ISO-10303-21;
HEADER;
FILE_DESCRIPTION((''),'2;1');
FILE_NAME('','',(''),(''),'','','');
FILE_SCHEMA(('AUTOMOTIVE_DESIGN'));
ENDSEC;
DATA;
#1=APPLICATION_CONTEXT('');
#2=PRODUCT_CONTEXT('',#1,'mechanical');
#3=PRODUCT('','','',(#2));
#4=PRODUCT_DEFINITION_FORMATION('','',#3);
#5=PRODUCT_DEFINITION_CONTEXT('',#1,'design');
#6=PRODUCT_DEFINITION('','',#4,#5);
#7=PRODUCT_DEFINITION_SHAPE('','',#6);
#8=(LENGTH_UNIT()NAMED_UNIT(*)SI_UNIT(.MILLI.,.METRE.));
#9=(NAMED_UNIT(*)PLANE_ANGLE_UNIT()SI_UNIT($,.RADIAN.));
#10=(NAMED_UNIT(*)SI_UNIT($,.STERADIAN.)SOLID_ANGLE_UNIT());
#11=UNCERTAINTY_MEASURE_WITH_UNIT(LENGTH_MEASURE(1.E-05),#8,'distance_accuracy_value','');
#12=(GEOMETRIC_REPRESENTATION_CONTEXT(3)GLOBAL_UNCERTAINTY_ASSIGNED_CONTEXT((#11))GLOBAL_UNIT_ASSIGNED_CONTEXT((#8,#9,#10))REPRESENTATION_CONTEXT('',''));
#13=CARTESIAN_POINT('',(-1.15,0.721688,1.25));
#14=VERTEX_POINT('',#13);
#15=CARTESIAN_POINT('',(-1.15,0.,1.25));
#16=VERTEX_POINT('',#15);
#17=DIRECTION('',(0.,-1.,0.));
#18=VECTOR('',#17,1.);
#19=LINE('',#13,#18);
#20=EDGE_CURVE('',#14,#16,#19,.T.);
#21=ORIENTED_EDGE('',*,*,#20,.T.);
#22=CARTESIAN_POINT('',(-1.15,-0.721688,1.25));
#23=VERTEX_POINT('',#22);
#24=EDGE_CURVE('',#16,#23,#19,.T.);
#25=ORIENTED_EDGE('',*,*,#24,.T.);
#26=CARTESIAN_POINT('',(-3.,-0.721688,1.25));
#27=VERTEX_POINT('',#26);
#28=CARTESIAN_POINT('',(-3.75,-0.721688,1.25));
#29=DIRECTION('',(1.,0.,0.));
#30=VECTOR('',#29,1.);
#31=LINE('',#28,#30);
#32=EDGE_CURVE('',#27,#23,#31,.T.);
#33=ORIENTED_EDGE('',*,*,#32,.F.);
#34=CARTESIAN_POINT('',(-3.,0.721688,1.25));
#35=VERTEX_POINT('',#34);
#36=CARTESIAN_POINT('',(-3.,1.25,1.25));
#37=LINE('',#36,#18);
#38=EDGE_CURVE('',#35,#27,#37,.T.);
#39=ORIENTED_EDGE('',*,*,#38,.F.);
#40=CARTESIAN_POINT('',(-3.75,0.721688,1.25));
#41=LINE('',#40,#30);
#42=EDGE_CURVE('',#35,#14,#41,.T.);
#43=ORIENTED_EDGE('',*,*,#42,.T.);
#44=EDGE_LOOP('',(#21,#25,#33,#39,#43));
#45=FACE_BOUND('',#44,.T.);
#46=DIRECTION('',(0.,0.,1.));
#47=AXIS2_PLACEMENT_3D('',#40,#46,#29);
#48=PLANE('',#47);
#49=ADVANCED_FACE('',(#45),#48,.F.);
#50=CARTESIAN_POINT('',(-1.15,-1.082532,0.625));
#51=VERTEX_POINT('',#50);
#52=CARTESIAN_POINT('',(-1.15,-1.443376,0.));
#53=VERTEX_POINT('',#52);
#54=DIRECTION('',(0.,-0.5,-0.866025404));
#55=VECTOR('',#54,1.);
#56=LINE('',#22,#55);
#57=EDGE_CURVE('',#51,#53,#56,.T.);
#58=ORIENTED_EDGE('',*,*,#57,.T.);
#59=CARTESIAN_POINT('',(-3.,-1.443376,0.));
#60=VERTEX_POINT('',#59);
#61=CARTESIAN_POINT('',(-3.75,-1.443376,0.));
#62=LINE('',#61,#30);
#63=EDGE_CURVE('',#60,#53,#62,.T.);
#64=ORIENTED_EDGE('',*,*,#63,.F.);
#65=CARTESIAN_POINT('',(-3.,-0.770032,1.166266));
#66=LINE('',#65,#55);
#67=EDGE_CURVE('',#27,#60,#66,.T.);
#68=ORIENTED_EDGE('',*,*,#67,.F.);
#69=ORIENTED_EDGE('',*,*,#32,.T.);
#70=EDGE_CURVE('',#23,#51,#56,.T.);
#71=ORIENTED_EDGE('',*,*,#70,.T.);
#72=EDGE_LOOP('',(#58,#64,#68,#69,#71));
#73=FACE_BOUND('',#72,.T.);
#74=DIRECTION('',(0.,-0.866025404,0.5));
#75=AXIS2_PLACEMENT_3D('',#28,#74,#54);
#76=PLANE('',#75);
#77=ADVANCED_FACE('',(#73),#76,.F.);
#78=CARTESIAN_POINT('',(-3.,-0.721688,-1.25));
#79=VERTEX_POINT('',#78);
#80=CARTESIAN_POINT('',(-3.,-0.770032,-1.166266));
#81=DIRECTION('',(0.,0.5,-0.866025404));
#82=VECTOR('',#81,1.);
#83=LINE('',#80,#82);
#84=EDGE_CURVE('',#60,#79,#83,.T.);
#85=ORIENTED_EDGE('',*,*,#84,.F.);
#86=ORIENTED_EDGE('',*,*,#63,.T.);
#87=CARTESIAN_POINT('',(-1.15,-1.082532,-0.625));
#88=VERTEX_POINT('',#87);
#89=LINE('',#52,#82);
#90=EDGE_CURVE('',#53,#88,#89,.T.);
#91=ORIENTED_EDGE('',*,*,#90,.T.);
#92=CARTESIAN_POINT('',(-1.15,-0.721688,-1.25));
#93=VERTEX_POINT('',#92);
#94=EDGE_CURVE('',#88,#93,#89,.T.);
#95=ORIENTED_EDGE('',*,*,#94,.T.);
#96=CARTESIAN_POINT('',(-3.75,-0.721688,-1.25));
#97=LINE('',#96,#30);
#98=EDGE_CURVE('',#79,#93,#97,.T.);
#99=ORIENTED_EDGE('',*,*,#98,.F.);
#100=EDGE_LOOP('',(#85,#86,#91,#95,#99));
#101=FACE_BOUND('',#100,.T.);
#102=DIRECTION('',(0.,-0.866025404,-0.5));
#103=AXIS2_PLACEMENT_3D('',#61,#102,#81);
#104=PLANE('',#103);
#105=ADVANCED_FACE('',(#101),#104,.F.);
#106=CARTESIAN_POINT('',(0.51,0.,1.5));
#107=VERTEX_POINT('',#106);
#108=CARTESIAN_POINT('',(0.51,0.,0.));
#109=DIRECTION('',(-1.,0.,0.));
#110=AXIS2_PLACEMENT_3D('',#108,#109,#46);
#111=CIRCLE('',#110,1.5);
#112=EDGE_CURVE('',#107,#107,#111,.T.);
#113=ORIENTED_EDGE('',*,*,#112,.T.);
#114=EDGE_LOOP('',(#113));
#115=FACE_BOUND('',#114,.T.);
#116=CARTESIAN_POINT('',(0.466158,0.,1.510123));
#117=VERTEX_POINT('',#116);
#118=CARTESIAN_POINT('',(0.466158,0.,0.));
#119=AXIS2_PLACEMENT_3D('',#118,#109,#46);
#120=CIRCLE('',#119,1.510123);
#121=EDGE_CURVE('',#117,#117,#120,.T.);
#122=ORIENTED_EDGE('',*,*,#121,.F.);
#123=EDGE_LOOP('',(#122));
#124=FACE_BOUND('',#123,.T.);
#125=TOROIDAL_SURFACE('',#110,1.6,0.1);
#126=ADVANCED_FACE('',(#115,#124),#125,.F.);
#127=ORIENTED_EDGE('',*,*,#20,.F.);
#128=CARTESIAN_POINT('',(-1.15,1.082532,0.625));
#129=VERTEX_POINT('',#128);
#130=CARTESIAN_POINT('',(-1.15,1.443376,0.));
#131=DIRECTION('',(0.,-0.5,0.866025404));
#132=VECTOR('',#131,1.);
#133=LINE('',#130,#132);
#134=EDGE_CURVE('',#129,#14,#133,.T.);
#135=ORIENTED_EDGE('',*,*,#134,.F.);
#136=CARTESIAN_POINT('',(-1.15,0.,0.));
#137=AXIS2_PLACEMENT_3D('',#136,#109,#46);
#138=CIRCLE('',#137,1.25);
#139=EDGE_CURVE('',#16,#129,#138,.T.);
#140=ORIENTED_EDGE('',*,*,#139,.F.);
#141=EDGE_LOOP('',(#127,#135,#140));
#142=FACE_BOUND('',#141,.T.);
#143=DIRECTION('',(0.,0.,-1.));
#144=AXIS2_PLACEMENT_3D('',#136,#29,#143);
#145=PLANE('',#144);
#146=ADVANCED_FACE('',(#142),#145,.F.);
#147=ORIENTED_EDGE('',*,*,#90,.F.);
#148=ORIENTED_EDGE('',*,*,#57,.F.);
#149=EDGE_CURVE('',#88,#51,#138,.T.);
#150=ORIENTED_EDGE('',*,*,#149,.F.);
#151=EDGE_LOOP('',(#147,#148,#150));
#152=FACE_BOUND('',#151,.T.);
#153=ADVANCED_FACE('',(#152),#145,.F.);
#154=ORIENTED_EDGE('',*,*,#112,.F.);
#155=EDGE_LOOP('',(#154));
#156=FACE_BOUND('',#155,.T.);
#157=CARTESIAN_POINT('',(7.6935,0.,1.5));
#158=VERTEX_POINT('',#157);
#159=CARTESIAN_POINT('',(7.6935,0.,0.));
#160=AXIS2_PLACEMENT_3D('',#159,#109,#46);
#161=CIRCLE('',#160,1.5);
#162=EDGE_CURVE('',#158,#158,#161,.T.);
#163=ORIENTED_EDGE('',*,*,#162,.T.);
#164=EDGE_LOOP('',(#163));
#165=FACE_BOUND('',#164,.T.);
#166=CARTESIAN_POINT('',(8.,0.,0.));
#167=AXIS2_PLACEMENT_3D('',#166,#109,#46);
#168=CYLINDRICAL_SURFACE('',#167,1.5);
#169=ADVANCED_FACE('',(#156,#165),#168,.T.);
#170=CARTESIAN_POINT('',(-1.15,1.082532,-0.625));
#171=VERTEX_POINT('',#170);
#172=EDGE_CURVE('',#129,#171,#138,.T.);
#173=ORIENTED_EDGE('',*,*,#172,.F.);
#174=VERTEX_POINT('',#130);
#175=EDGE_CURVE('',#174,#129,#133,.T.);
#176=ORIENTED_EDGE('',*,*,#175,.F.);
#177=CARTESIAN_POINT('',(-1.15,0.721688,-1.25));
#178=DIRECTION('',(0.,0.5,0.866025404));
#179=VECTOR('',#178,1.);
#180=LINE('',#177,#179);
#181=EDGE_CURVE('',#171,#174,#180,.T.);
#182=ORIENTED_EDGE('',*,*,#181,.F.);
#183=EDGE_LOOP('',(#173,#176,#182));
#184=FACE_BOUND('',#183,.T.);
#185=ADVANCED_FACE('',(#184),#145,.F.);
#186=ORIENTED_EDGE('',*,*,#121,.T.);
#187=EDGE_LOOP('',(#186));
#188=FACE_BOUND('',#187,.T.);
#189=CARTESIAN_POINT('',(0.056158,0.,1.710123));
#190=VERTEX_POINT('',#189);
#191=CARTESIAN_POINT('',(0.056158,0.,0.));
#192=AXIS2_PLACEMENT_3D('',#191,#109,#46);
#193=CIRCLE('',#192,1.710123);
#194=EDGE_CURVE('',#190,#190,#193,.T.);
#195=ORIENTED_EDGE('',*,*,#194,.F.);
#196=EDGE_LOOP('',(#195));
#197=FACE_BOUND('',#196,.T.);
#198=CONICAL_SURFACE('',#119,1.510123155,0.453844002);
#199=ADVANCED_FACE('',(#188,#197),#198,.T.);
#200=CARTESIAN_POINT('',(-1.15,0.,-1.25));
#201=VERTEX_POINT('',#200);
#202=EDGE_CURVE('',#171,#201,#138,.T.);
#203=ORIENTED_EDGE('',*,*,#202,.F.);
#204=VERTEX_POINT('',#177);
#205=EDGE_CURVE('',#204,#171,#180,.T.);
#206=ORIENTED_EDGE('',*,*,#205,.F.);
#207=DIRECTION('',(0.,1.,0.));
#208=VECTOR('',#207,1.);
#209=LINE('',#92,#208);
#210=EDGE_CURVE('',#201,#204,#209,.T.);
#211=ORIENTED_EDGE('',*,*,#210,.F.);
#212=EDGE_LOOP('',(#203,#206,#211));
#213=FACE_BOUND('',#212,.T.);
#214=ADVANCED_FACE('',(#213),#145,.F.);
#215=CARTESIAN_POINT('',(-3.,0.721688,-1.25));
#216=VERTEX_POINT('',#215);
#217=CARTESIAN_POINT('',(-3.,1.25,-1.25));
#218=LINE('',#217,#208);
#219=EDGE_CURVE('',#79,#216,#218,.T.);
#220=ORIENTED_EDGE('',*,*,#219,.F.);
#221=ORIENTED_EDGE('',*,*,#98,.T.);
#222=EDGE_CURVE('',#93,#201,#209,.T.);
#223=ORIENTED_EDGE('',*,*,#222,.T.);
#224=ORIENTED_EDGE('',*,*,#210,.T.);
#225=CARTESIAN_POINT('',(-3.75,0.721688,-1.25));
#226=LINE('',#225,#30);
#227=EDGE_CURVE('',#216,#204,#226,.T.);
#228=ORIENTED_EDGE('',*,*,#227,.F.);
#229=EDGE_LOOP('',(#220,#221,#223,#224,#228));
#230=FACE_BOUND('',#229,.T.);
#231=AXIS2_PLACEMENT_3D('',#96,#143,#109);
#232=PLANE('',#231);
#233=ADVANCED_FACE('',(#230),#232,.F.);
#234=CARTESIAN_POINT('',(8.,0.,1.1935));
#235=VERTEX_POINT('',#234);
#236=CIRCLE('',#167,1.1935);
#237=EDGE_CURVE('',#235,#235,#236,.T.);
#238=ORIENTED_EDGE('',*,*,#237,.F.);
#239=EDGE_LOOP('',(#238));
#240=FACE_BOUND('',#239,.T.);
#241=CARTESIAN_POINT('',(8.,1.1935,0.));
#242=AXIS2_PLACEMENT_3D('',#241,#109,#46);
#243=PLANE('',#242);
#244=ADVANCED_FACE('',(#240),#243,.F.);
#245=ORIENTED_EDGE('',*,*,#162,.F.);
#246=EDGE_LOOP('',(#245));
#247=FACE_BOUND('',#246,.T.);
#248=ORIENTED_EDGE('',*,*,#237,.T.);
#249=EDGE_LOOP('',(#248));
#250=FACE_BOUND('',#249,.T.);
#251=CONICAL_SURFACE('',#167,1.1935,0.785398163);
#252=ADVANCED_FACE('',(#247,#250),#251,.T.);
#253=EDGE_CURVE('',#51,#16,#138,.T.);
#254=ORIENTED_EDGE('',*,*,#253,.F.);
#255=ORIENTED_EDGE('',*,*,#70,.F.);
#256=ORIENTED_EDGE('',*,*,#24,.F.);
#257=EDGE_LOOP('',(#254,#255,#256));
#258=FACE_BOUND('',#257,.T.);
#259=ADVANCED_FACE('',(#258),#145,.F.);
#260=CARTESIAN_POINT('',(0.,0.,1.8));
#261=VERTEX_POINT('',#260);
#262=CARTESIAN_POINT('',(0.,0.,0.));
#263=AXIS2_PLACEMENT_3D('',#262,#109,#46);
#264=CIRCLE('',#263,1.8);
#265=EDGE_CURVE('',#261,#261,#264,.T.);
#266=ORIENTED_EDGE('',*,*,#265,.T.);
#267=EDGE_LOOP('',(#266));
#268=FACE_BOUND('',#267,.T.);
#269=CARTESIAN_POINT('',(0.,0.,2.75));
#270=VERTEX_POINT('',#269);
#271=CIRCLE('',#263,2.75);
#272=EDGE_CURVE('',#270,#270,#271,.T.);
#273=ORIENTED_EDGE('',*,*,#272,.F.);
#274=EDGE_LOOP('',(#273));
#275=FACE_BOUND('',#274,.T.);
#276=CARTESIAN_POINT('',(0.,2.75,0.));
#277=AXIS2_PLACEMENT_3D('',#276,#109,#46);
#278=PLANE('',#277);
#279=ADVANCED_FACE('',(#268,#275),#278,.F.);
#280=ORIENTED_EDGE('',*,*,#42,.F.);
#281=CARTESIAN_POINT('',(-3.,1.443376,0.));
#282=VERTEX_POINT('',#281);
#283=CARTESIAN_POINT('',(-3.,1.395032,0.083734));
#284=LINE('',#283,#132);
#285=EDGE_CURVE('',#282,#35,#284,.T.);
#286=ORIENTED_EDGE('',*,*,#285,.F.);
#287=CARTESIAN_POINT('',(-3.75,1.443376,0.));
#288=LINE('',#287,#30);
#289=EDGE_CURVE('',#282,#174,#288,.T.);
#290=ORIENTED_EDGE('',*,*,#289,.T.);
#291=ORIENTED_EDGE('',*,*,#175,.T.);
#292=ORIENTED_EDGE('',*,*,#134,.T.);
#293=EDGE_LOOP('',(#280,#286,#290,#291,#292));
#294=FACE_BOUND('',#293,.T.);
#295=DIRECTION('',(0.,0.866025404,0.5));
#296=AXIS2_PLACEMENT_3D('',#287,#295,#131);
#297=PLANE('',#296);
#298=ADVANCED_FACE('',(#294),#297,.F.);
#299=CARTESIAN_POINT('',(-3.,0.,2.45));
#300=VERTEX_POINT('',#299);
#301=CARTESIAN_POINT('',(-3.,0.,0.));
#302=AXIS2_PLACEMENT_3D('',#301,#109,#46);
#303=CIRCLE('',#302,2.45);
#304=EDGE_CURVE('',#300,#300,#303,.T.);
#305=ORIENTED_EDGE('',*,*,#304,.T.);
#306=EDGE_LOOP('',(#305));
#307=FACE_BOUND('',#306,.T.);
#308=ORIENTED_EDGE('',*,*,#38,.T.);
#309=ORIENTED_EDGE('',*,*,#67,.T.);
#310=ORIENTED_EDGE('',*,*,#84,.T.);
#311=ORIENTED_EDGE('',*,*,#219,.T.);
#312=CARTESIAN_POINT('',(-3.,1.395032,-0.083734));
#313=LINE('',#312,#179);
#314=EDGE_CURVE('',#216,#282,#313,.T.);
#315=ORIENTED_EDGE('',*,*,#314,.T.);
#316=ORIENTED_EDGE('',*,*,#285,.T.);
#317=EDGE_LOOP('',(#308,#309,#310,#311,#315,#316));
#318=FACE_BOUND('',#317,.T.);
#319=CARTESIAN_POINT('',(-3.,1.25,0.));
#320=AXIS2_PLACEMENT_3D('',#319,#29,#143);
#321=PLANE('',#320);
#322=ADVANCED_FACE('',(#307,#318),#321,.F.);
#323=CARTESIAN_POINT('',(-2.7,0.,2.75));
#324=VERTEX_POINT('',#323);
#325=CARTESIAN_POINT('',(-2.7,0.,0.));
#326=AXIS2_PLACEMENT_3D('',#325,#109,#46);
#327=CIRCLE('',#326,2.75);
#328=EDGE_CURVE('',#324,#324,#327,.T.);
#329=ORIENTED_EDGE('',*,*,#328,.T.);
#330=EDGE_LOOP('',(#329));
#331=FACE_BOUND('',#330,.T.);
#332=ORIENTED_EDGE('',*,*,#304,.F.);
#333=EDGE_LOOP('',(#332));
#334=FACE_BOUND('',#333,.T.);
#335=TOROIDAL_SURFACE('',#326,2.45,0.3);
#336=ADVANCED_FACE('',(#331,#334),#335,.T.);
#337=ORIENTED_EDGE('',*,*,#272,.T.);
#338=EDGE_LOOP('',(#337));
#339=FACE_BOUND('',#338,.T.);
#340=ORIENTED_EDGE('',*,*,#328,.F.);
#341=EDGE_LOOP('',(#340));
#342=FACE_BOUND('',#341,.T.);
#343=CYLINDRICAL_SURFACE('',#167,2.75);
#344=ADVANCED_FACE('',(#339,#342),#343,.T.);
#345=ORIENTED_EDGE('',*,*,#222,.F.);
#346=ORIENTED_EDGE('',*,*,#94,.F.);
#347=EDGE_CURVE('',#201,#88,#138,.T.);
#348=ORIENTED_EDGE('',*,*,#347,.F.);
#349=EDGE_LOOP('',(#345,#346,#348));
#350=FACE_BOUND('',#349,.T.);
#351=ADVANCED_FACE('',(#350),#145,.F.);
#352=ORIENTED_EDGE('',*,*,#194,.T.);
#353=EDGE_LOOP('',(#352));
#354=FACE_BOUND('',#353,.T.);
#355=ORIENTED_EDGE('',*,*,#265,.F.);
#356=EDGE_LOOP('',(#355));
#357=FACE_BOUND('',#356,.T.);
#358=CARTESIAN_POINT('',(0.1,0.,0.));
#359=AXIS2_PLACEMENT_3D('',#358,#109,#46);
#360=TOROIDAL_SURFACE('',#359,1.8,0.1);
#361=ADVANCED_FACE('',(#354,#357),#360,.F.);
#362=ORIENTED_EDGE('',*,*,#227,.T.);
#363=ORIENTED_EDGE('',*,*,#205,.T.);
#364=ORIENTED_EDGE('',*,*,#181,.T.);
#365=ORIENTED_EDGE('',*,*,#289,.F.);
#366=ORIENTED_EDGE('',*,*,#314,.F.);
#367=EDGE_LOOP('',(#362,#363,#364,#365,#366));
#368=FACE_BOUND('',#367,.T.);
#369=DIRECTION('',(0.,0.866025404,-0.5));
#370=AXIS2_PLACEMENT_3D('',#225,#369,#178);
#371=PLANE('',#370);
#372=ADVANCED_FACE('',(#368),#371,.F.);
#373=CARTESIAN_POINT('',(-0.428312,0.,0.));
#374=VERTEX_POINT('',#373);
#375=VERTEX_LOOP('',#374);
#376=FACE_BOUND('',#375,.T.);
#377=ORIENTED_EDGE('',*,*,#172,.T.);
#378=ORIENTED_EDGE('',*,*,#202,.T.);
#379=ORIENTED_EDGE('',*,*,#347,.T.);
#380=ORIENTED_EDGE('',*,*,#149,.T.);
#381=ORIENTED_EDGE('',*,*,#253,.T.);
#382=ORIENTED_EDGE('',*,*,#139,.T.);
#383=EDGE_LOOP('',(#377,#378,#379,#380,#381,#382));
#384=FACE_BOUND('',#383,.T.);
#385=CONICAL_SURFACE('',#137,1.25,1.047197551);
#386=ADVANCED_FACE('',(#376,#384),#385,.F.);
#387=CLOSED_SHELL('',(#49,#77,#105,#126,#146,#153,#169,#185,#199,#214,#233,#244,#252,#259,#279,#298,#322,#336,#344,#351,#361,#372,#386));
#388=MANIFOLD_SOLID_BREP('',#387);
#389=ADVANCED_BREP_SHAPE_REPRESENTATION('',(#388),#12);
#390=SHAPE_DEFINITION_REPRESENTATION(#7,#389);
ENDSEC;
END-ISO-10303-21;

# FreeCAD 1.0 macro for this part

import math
import FreeCAD as App
import Part
import Sketcher
from FreeCAD import Vector
Q = App.Units.Quantity

doc = App.newDocument("Part")
params = doc.addObject("Spreadsheet::Sheet", "Params")
for row, (alias, value) in enumerate([
    ("sketch1_radius", "0.1 mm"),
    ("sketch1_radius2", "0.3 mm"),
    ("sketch1_width", "2.7 mm"),
    ("sketch1_height", "1.2 mm"),
    ("sketch1_width2", "1.85 mm"),
    ("revolution_angle", "360 deg"),
    ("pocket1_length", "2.6 mm"),
], start=1):
    params.set(f"A{row}", alias)
    params.set(f"B{row}", "=" + value)
    params.setAlias(f"B{row}", alias)

body = doc.addObject("PartDesign::Body", "Body")

# Sketch on XY plane
sketch1 = body.newObject("Sketcher::SketchObject", "Sketch")
sketch1.AttachmentSupport = (doc.getObject("XY_Plane"), [""])
sketch1.MapMode = "FlatFace"
sketch1.addGeometry([
    Part.LineSegment(Vector(-1.15, 1.25, 0), Vector(-0.428312, 0, 0)),  # 0
    Part.LineSegment(Vector(-0.428312, 0, 0), Vector(8, 0, 0)),  # 1
    Part.LineSegment(Vector(8, 0, 0), Vector(8, 1.1935, 0)),  # 2
    Part.LineSegment(Vector(8, 1.1935, 0), Vector(7.6935, 1.5, 0)),  # 3
    Part.LineSegment(Vector(7.6935, 1.5, 0), Vector(0.51, 1.5, 0)),  # 4
    Part.ArcOfCircle(Part.Circle(Vector(0.51, 1.6, 0), Vector(0, 0, 1), 0.1), math.radians(-116.003346), math.radians(-89.999999)),  # 5
    Part.LineSegment(Vector(0.466158, 1.510123, 0), Vector(0.056158, 1.710123, 0)),  # 6
    Part.ArcOfCircle(Part.Circle(Vector(0.1, 1.8, 0), Vector(0, 0, 1), 0.1), math.radians(180), math.radians(243.996654)),  # 7
    Part.LineSegment(Vector(0, 1.8, 0), Vector(0, 2.75, 0)),  # 8
    Part.LineSegment(Vector(0, 2.75, 0), Vector(-2.7, 2.75, 0)),  # 9
    Part.ArcOfCircle(Part.Circle(Vector(-2.7, 2.45, 0), Vector(0, 0, 1), 0.3), math.radians(90), math.radians(180)),  # 10
    Part.LineSegment(Vector(-3, 2.45, 0), Vector(-3, 1.25, 0)),  # 11
    Part.LineSegment(Vector(-3, 1.25, 0), Vector(-1.15, 1.25, 0)),  # 12
], False)
sketch1.addConstraint([
    Sketcher.Constraint("Coincident", 0, 2, 1, 1),
    Sketcher.Constraint("Coincident", 1, 2, 2, 1),
    Sketcher.Constraint("Coincident", 2, 2, 3, 1),
    Sketcher.Constraint("Coincident", 3, 2, 4, 1),
    Sketcher.Constraint("Tangent", 4, 2, 5, 2),
    Sketcher.Constraint("Tangent", 5, 1, 6, 1),
    Sketcher.Constraint("Tangent", 6, 2, 7, 2),
    Sketcher.Constraint("Tangent", 7, 1, 8, 1),
    Sketcher.Constraint("Coincident", 8, 2, 9, 1),
    Sketcher.Constraint("Tangent", 9, 2, 10, 1),
    Sketcher.Constraint("Tangent", 10, 2, 11, 1),
    Sketcher.Constraint("Coincident", 11, 2, 12, 1),
    Sketcher.Constraint("Coincident", 12, 2, 0, 1),
    Sketcher.Constraint("Horizontal", 1),
    Sketcher.Constraint("Vertical", 2),
    Sketcher.Constraint("Horizontal", 4),
    Sketcher.Constraint("Vertical", 8),
    Sketcher.Constraint("Horizontal", 9),
    Sketcher.Constraint("Vertical", 11),
    Sketcher.Constraint("Horizontal", 12),
    Sketcher.Constraint("Equal", 5, 7),
    Sketcher.Constraint("PointOnObject", 0, 2, -1),
    Sketcher.Constraint("PointOnObject", 7, 1, -2),
    Sketcher.Constraint("Radius", 5, 0.1),
    Sketcher.Constraint("Radius", 10, 0.3),
    Sketcher.Constraint("Angle", 0, Q("-60 deg")),
    Sketcher.Constraint("Angle", 3, Q("135 deg")),
    Sketcher.Constraint("DistanceX", 9, 2, 9, 1, 2.7),
    Sketcher.Constraint("DistanceY", 11, 2, 11, 1, 1.2),
    Sketcher.Constraint("DistanceX", -1, 1, 1, 2, 8.0),
    Sketcher.Constraint("DistanceX", 12, 1, 12, 2, 1.85),
    Sketcher.Constraint("DistanceY", 8, 1, 8, 2, 0.95),
    Sketcher.Constraint("DistanceY", -1, 1, 5, 3, 1.6),
    Sketcher.Constraint("DistanceY", -1, 1, 7, 3, 1.8),
    Sketcher.Constraint("DistanceX", -1, 1, 5, 3, 0.51),
    Sketcher.Constraint("DistanceX", 4, 2, 4, 1, 7.1835),
])
sketch1.setExpression("Constraints[23]", "Params.sketch1_radius")
sketch1.setExpression("Constraints[24]", "Params.sketch1_radius2")
sketch1.setExpression("Constraints[27]", "Params.sketch1_width")
sketch1.setExpression("Constraints[28]", "Params.sketch1_height")
sketch1.setExpression("Constraints[30]", "Params.sketch1_width2")
revolution = body.newObject("PartDesign::Revolution", "Revolution")
revolution.Profile = sketch1
revolution.ReferenceAxis = (sketch1, ["H_Axis"])
revolution.setExpression("Angle", "Params.revolution_angle")

# Sketch on YZ plane
sketch2 = body.newObject("Sketcher::SketchObject", "Sketch001")
sketch2.AttachmentSupport = (doc.getObject("YZ_Plane"), [""])
sketch2.MapMode = "FlatFace"
sketch2.AttachmentOffset = App.Placement(Vector(0, 0, -1.15), App.Rotation())
sketch2.addGeometry([
    Part.LineSegment(Vector(0.721688, 1.25, 0), Vector(-0.721688, 1.25, 0)),  # 0
    Part.LineSegment(Vector(-0.721688, 1.25, 0), Vector(-1.443376, 0, 0)),  # 1
    Part.LineSegment(Vector(-1.443376, 0, 0), Vector(-0.721688, -1.25, 0)),  # 2
    Part.LineSegment(Vector(-0.721688, -1.25, 0), Vector(0.721688, -1.25, 0)),  # 3
    Part.LineSegment(Vector(0.721688, -1.25, 0), Vector(1.443376, 0, 0)),  # 4
    Part.LineSegment(Vector(1.443376, 0, 0), Vector(0.721688, 1.25, 0)),  # 5
], False)
sketch2.addConstraint([
    Sketcher.Constraint("Coincident", 0, 2, 1, 1),
    Sketcher.Constraint("Coincident", 1, 2, 2, 1),
    Sketcher.Constraint("Coincident", 2, 2, 3, 1),
    Sketcher.Constraint("Coincident", 3, 2, 4, 1),
    Sketcher.Constraint("Coincident", 4, 2, 5, 1),
    Sketcher.Constraint("Coincident", 5, 2, 0, 1),
    Sketcher.Constraint("Horizontal", 0),
    Sketcher.Constraint("Horizontal", 3),
    Sketcher.Constraint("Symmetric", 0, 2, 3, 2, -1, 1),
    Sketcher.Constraint("Symmetric", 1, 2, 4, 2, -1, 1),
    Sketcher.Constraint("PointOnObject", 1, 2, -1),
    Sketcher.Constraint("Parallel", 2, 5),
    Sketcher.Constraint("Vertical", 0, 2, 2, 2),
    Sketcher.Constraint("Angle", 1, Q("-120 deg")),
    Sketcher.Constraint("DistanceY", 2, 2, 0, 2, 2.5),
    Sketcher.Constraint("DistanceX", 0, 2, 0, 1, 1.443376),
])
pocket1 = body.newObject("PartDesign::Pocket", "Pocket")
pocket1.Profile = sketch2
pocket1.setExpression("Length", "Params.pocket1_length")

doc.recompute()
